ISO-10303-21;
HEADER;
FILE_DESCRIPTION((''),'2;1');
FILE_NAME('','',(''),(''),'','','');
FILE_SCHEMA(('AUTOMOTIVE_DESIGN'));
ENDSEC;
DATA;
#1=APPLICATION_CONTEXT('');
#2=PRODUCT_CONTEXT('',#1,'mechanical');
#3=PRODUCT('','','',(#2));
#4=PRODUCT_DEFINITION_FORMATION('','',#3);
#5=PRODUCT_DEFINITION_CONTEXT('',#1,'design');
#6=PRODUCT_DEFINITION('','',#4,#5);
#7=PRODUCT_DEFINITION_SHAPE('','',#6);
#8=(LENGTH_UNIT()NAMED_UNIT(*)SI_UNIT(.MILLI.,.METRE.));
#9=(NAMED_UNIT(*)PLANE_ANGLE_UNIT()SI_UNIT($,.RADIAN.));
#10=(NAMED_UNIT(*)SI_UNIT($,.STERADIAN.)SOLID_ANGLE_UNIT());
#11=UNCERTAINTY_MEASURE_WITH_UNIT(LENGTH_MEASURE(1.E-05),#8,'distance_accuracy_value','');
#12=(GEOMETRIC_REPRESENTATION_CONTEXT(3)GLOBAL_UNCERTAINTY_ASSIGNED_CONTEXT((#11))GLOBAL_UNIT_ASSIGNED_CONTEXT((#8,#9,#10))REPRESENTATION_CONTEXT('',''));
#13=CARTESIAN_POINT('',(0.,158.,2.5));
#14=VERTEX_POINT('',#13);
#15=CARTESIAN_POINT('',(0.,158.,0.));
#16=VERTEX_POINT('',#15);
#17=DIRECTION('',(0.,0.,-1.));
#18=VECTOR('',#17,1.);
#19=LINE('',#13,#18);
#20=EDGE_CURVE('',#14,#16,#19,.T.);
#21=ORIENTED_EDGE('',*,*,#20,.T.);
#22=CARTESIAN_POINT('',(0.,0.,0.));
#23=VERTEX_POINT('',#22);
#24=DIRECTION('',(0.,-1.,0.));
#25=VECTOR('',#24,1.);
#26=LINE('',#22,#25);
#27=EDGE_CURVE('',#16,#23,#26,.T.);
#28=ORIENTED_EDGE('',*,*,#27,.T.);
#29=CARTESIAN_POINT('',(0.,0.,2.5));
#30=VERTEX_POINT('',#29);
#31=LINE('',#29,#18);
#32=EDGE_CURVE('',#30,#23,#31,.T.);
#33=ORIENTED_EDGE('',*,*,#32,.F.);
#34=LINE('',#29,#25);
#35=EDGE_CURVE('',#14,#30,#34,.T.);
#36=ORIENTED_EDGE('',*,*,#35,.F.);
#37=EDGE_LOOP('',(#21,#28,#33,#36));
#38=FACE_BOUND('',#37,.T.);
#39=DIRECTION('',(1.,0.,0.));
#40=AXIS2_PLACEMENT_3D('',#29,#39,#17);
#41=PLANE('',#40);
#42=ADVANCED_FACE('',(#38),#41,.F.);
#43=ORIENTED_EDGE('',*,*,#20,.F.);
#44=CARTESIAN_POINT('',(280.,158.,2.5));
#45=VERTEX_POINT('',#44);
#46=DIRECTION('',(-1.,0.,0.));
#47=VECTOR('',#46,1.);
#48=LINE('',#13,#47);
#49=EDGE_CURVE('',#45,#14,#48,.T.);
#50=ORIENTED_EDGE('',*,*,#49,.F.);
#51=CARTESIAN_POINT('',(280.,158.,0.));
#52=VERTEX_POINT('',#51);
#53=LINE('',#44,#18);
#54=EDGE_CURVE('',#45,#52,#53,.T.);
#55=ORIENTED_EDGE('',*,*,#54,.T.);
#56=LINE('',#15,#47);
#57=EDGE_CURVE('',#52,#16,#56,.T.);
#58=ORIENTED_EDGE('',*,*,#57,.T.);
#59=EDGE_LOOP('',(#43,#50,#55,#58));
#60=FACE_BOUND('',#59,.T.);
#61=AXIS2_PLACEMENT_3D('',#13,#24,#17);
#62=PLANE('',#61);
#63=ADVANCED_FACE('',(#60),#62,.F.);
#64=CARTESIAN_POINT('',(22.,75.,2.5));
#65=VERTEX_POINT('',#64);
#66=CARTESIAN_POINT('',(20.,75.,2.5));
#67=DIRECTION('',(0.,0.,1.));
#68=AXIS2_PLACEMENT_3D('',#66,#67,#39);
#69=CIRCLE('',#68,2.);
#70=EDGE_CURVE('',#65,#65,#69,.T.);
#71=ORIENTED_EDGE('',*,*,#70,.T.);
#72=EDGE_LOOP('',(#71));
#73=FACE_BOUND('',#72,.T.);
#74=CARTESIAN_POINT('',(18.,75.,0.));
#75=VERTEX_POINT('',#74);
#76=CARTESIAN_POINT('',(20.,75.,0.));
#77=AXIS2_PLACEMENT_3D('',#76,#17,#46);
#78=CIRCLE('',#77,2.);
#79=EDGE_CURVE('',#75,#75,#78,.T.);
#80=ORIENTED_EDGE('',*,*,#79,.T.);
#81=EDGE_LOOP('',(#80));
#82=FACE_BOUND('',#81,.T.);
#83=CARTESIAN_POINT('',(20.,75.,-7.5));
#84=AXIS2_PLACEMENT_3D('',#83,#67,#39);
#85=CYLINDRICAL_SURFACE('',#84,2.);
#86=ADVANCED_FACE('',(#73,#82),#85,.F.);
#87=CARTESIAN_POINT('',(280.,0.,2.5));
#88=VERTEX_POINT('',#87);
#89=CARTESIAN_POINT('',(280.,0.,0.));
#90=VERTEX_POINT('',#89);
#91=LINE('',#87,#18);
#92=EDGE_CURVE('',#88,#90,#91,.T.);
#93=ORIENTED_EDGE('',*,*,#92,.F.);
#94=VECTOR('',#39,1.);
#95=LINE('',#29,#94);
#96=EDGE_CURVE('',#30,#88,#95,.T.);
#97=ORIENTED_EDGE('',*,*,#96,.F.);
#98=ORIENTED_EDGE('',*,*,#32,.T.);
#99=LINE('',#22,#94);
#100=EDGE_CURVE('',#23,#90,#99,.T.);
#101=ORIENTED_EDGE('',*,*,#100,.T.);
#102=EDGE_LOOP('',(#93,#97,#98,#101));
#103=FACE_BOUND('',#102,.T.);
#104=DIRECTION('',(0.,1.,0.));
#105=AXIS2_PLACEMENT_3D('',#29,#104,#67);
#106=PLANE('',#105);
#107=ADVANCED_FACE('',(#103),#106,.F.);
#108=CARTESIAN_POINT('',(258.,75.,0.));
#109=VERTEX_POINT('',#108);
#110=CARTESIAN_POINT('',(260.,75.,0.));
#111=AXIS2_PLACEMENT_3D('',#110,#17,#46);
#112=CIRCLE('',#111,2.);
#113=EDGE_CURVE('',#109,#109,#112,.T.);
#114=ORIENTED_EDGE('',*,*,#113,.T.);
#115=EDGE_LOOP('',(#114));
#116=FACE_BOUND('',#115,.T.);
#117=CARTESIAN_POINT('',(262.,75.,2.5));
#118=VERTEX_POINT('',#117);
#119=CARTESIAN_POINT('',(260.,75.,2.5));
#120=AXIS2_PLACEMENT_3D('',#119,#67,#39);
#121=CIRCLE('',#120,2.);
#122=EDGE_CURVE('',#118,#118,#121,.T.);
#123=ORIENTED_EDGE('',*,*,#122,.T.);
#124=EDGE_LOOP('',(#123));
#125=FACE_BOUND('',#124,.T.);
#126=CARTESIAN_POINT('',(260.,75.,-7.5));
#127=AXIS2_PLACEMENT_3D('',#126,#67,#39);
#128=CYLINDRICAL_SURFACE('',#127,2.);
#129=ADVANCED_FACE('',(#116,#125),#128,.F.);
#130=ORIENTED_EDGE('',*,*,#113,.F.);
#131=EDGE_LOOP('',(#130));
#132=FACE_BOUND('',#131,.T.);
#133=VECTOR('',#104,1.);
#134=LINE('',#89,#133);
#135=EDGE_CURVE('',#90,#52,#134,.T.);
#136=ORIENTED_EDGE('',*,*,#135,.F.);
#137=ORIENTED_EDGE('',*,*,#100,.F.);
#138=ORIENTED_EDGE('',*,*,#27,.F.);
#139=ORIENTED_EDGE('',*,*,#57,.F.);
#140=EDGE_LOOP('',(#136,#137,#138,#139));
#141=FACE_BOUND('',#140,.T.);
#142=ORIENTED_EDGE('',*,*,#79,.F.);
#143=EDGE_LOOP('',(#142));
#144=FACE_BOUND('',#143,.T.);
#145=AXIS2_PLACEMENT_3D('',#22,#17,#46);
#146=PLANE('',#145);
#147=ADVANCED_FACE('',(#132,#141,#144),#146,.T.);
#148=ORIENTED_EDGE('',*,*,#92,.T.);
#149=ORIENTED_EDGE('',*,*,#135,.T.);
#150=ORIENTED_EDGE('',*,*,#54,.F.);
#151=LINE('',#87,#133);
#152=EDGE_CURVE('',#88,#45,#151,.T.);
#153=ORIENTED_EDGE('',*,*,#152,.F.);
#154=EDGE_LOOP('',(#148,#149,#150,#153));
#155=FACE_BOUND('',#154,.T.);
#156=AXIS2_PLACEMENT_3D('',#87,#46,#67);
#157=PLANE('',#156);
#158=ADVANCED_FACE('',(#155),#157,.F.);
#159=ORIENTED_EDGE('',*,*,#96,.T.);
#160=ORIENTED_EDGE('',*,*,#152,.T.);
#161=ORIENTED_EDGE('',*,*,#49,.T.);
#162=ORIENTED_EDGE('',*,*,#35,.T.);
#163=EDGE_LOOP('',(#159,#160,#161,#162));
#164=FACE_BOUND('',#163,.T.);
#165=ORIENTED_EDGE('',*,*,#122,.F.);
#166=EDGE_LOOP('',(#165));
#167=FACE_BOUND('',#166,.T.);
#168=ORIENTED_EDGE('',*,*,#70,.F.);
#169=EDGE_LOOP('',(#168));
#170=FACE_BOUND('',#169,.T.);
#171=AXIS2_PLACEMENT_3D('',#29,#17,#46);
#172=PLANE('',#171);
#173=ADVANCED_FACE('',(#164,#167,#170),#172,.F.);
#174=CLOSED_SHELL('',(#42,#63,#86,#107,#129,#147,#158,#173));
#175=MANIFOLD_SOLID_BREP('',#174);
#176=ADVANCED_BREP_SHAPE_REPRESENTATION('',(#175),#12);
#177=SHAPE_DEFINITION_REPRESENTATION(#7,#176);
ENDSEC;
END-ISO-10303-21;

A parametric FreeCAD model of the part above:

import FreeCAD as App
import Part
import Sketcher

doc = App.newDocument("Part")
body = doc.addObject("PartDesign::Body", "Body")

# Sketch on XY plane
sketch1 = doc.addObject("Sketcher::SketchObject", "Sketch")
body.addObject(sketch1)
sketch1.AttachmentSupport = (doc.XY_Plane, [""])
sketch1.MapMode = "FlatFace"
sketch1.addGeometry(Part.LineSegment(App.Vector(0, 158, 0), App.Vector(0, 0, 0)), False)
sketch1.addGeometry(Part.LineSegment(App.Vector(0, 0, 0), App.Vector(280, 0, 0)), False)
sketch1.addGeometry(Part.LineSegment(App.Vector(280, 0, 0), App.Vector(280, 158, 0)), False)
sketch1.addGeometry(Part.LineSegment(App.Vector(280, 158, 0), App.Vector(0, 158, 0)), False)
sketch1.addConstraint(Sketcher.Constraint("Coincident", 0, 2, 1, 1))
sketch1.addConstraint(Sketcher.Constraint("Coincident", 1, 2, 2, 1))
sketch1.addConstraint(Sketcher.Constraint("Coincident", 2, 2, 3, 1))
sketch1.addConstraint(Sketcher.Constraint("Coincident", 3, 2, 0, 1))
sketch1.addConstraint(Sketcher.Constraint("Vertical", 0))
sketch1.addConstraint(Sketcher.Constraint("Horizontal", 1))
sketch1.addConstraint(Sketcher.Constraint("Vertical", 2))
sketch1.addConstraint(Sketcher.Constraint("Horizontal", 3))
sketch1.addConstraint(Sketcher.Constraint("Coincident", 0, 2, -1, 1))
sketch1.addConstraint(Sketcher.Constraint("DistanceX", 1, 1, 1, 2, 280.0))
sketch1.addConstraint(Sketcher.Constraint("DistanceY", 0, 2, 0, 1, 158.0))
pad1 = doc.addObject("PartDesign::Pad", "Pad")
body.addObject(pad1)
pad1.Profile = sketch1
pad1.Length = 2.5

# Sketch on XY plane
sketch2 = doc.addObject("Sketcher::SketchObject", "Sketch001")
body.addObject(sketch2)
sketch2.AttachmentSupport = (doc.XY_Plane, [""])
sketch2.MapMode = "FlatFace"
sketch2.AttachmentOffset = App.Placement(App.Vector(0, 0, 2.5), App.Rotation())
sketch2.addGeometry(Part.Circle(App.Vector(260, 75, 0), App.Vector(0, 0, 1), 2), False)
sketch2.addGeometry(Part.Circle(App.Vector(20, 75, 0), App.Vector(0, 0, 1), 2), False)
sketch2.addConstraint(Sketcher.Constraint("Equal", 0, 1))
sketch2.addConstraint(Sketcher.Constraint("Horizontal", 0, 3, 1, 3))
sketch2.addConstraint(Sketcher.Constraint("Diameter", 0, 4.0))
sketch2.addConstraint(Sketcher.Constraint("DistanceX", -1, 1, 0, 3, 260.0))
sketch2.addConstraint(Sketcher.Constraint("DistanceY", -1, 1, 0, 3, 75.0))
sketch2.addConstraint(Sketcher.Constraint("DistanceX", -1, 1, 1, 3, 20.0))
pocket1 = doc.addObject("PartDesign::Pocket", "Pocket")
body.addObject(pocket1)
pocket1.Profile = sketch2
pocket1.Length = 10

doc.recompute()
